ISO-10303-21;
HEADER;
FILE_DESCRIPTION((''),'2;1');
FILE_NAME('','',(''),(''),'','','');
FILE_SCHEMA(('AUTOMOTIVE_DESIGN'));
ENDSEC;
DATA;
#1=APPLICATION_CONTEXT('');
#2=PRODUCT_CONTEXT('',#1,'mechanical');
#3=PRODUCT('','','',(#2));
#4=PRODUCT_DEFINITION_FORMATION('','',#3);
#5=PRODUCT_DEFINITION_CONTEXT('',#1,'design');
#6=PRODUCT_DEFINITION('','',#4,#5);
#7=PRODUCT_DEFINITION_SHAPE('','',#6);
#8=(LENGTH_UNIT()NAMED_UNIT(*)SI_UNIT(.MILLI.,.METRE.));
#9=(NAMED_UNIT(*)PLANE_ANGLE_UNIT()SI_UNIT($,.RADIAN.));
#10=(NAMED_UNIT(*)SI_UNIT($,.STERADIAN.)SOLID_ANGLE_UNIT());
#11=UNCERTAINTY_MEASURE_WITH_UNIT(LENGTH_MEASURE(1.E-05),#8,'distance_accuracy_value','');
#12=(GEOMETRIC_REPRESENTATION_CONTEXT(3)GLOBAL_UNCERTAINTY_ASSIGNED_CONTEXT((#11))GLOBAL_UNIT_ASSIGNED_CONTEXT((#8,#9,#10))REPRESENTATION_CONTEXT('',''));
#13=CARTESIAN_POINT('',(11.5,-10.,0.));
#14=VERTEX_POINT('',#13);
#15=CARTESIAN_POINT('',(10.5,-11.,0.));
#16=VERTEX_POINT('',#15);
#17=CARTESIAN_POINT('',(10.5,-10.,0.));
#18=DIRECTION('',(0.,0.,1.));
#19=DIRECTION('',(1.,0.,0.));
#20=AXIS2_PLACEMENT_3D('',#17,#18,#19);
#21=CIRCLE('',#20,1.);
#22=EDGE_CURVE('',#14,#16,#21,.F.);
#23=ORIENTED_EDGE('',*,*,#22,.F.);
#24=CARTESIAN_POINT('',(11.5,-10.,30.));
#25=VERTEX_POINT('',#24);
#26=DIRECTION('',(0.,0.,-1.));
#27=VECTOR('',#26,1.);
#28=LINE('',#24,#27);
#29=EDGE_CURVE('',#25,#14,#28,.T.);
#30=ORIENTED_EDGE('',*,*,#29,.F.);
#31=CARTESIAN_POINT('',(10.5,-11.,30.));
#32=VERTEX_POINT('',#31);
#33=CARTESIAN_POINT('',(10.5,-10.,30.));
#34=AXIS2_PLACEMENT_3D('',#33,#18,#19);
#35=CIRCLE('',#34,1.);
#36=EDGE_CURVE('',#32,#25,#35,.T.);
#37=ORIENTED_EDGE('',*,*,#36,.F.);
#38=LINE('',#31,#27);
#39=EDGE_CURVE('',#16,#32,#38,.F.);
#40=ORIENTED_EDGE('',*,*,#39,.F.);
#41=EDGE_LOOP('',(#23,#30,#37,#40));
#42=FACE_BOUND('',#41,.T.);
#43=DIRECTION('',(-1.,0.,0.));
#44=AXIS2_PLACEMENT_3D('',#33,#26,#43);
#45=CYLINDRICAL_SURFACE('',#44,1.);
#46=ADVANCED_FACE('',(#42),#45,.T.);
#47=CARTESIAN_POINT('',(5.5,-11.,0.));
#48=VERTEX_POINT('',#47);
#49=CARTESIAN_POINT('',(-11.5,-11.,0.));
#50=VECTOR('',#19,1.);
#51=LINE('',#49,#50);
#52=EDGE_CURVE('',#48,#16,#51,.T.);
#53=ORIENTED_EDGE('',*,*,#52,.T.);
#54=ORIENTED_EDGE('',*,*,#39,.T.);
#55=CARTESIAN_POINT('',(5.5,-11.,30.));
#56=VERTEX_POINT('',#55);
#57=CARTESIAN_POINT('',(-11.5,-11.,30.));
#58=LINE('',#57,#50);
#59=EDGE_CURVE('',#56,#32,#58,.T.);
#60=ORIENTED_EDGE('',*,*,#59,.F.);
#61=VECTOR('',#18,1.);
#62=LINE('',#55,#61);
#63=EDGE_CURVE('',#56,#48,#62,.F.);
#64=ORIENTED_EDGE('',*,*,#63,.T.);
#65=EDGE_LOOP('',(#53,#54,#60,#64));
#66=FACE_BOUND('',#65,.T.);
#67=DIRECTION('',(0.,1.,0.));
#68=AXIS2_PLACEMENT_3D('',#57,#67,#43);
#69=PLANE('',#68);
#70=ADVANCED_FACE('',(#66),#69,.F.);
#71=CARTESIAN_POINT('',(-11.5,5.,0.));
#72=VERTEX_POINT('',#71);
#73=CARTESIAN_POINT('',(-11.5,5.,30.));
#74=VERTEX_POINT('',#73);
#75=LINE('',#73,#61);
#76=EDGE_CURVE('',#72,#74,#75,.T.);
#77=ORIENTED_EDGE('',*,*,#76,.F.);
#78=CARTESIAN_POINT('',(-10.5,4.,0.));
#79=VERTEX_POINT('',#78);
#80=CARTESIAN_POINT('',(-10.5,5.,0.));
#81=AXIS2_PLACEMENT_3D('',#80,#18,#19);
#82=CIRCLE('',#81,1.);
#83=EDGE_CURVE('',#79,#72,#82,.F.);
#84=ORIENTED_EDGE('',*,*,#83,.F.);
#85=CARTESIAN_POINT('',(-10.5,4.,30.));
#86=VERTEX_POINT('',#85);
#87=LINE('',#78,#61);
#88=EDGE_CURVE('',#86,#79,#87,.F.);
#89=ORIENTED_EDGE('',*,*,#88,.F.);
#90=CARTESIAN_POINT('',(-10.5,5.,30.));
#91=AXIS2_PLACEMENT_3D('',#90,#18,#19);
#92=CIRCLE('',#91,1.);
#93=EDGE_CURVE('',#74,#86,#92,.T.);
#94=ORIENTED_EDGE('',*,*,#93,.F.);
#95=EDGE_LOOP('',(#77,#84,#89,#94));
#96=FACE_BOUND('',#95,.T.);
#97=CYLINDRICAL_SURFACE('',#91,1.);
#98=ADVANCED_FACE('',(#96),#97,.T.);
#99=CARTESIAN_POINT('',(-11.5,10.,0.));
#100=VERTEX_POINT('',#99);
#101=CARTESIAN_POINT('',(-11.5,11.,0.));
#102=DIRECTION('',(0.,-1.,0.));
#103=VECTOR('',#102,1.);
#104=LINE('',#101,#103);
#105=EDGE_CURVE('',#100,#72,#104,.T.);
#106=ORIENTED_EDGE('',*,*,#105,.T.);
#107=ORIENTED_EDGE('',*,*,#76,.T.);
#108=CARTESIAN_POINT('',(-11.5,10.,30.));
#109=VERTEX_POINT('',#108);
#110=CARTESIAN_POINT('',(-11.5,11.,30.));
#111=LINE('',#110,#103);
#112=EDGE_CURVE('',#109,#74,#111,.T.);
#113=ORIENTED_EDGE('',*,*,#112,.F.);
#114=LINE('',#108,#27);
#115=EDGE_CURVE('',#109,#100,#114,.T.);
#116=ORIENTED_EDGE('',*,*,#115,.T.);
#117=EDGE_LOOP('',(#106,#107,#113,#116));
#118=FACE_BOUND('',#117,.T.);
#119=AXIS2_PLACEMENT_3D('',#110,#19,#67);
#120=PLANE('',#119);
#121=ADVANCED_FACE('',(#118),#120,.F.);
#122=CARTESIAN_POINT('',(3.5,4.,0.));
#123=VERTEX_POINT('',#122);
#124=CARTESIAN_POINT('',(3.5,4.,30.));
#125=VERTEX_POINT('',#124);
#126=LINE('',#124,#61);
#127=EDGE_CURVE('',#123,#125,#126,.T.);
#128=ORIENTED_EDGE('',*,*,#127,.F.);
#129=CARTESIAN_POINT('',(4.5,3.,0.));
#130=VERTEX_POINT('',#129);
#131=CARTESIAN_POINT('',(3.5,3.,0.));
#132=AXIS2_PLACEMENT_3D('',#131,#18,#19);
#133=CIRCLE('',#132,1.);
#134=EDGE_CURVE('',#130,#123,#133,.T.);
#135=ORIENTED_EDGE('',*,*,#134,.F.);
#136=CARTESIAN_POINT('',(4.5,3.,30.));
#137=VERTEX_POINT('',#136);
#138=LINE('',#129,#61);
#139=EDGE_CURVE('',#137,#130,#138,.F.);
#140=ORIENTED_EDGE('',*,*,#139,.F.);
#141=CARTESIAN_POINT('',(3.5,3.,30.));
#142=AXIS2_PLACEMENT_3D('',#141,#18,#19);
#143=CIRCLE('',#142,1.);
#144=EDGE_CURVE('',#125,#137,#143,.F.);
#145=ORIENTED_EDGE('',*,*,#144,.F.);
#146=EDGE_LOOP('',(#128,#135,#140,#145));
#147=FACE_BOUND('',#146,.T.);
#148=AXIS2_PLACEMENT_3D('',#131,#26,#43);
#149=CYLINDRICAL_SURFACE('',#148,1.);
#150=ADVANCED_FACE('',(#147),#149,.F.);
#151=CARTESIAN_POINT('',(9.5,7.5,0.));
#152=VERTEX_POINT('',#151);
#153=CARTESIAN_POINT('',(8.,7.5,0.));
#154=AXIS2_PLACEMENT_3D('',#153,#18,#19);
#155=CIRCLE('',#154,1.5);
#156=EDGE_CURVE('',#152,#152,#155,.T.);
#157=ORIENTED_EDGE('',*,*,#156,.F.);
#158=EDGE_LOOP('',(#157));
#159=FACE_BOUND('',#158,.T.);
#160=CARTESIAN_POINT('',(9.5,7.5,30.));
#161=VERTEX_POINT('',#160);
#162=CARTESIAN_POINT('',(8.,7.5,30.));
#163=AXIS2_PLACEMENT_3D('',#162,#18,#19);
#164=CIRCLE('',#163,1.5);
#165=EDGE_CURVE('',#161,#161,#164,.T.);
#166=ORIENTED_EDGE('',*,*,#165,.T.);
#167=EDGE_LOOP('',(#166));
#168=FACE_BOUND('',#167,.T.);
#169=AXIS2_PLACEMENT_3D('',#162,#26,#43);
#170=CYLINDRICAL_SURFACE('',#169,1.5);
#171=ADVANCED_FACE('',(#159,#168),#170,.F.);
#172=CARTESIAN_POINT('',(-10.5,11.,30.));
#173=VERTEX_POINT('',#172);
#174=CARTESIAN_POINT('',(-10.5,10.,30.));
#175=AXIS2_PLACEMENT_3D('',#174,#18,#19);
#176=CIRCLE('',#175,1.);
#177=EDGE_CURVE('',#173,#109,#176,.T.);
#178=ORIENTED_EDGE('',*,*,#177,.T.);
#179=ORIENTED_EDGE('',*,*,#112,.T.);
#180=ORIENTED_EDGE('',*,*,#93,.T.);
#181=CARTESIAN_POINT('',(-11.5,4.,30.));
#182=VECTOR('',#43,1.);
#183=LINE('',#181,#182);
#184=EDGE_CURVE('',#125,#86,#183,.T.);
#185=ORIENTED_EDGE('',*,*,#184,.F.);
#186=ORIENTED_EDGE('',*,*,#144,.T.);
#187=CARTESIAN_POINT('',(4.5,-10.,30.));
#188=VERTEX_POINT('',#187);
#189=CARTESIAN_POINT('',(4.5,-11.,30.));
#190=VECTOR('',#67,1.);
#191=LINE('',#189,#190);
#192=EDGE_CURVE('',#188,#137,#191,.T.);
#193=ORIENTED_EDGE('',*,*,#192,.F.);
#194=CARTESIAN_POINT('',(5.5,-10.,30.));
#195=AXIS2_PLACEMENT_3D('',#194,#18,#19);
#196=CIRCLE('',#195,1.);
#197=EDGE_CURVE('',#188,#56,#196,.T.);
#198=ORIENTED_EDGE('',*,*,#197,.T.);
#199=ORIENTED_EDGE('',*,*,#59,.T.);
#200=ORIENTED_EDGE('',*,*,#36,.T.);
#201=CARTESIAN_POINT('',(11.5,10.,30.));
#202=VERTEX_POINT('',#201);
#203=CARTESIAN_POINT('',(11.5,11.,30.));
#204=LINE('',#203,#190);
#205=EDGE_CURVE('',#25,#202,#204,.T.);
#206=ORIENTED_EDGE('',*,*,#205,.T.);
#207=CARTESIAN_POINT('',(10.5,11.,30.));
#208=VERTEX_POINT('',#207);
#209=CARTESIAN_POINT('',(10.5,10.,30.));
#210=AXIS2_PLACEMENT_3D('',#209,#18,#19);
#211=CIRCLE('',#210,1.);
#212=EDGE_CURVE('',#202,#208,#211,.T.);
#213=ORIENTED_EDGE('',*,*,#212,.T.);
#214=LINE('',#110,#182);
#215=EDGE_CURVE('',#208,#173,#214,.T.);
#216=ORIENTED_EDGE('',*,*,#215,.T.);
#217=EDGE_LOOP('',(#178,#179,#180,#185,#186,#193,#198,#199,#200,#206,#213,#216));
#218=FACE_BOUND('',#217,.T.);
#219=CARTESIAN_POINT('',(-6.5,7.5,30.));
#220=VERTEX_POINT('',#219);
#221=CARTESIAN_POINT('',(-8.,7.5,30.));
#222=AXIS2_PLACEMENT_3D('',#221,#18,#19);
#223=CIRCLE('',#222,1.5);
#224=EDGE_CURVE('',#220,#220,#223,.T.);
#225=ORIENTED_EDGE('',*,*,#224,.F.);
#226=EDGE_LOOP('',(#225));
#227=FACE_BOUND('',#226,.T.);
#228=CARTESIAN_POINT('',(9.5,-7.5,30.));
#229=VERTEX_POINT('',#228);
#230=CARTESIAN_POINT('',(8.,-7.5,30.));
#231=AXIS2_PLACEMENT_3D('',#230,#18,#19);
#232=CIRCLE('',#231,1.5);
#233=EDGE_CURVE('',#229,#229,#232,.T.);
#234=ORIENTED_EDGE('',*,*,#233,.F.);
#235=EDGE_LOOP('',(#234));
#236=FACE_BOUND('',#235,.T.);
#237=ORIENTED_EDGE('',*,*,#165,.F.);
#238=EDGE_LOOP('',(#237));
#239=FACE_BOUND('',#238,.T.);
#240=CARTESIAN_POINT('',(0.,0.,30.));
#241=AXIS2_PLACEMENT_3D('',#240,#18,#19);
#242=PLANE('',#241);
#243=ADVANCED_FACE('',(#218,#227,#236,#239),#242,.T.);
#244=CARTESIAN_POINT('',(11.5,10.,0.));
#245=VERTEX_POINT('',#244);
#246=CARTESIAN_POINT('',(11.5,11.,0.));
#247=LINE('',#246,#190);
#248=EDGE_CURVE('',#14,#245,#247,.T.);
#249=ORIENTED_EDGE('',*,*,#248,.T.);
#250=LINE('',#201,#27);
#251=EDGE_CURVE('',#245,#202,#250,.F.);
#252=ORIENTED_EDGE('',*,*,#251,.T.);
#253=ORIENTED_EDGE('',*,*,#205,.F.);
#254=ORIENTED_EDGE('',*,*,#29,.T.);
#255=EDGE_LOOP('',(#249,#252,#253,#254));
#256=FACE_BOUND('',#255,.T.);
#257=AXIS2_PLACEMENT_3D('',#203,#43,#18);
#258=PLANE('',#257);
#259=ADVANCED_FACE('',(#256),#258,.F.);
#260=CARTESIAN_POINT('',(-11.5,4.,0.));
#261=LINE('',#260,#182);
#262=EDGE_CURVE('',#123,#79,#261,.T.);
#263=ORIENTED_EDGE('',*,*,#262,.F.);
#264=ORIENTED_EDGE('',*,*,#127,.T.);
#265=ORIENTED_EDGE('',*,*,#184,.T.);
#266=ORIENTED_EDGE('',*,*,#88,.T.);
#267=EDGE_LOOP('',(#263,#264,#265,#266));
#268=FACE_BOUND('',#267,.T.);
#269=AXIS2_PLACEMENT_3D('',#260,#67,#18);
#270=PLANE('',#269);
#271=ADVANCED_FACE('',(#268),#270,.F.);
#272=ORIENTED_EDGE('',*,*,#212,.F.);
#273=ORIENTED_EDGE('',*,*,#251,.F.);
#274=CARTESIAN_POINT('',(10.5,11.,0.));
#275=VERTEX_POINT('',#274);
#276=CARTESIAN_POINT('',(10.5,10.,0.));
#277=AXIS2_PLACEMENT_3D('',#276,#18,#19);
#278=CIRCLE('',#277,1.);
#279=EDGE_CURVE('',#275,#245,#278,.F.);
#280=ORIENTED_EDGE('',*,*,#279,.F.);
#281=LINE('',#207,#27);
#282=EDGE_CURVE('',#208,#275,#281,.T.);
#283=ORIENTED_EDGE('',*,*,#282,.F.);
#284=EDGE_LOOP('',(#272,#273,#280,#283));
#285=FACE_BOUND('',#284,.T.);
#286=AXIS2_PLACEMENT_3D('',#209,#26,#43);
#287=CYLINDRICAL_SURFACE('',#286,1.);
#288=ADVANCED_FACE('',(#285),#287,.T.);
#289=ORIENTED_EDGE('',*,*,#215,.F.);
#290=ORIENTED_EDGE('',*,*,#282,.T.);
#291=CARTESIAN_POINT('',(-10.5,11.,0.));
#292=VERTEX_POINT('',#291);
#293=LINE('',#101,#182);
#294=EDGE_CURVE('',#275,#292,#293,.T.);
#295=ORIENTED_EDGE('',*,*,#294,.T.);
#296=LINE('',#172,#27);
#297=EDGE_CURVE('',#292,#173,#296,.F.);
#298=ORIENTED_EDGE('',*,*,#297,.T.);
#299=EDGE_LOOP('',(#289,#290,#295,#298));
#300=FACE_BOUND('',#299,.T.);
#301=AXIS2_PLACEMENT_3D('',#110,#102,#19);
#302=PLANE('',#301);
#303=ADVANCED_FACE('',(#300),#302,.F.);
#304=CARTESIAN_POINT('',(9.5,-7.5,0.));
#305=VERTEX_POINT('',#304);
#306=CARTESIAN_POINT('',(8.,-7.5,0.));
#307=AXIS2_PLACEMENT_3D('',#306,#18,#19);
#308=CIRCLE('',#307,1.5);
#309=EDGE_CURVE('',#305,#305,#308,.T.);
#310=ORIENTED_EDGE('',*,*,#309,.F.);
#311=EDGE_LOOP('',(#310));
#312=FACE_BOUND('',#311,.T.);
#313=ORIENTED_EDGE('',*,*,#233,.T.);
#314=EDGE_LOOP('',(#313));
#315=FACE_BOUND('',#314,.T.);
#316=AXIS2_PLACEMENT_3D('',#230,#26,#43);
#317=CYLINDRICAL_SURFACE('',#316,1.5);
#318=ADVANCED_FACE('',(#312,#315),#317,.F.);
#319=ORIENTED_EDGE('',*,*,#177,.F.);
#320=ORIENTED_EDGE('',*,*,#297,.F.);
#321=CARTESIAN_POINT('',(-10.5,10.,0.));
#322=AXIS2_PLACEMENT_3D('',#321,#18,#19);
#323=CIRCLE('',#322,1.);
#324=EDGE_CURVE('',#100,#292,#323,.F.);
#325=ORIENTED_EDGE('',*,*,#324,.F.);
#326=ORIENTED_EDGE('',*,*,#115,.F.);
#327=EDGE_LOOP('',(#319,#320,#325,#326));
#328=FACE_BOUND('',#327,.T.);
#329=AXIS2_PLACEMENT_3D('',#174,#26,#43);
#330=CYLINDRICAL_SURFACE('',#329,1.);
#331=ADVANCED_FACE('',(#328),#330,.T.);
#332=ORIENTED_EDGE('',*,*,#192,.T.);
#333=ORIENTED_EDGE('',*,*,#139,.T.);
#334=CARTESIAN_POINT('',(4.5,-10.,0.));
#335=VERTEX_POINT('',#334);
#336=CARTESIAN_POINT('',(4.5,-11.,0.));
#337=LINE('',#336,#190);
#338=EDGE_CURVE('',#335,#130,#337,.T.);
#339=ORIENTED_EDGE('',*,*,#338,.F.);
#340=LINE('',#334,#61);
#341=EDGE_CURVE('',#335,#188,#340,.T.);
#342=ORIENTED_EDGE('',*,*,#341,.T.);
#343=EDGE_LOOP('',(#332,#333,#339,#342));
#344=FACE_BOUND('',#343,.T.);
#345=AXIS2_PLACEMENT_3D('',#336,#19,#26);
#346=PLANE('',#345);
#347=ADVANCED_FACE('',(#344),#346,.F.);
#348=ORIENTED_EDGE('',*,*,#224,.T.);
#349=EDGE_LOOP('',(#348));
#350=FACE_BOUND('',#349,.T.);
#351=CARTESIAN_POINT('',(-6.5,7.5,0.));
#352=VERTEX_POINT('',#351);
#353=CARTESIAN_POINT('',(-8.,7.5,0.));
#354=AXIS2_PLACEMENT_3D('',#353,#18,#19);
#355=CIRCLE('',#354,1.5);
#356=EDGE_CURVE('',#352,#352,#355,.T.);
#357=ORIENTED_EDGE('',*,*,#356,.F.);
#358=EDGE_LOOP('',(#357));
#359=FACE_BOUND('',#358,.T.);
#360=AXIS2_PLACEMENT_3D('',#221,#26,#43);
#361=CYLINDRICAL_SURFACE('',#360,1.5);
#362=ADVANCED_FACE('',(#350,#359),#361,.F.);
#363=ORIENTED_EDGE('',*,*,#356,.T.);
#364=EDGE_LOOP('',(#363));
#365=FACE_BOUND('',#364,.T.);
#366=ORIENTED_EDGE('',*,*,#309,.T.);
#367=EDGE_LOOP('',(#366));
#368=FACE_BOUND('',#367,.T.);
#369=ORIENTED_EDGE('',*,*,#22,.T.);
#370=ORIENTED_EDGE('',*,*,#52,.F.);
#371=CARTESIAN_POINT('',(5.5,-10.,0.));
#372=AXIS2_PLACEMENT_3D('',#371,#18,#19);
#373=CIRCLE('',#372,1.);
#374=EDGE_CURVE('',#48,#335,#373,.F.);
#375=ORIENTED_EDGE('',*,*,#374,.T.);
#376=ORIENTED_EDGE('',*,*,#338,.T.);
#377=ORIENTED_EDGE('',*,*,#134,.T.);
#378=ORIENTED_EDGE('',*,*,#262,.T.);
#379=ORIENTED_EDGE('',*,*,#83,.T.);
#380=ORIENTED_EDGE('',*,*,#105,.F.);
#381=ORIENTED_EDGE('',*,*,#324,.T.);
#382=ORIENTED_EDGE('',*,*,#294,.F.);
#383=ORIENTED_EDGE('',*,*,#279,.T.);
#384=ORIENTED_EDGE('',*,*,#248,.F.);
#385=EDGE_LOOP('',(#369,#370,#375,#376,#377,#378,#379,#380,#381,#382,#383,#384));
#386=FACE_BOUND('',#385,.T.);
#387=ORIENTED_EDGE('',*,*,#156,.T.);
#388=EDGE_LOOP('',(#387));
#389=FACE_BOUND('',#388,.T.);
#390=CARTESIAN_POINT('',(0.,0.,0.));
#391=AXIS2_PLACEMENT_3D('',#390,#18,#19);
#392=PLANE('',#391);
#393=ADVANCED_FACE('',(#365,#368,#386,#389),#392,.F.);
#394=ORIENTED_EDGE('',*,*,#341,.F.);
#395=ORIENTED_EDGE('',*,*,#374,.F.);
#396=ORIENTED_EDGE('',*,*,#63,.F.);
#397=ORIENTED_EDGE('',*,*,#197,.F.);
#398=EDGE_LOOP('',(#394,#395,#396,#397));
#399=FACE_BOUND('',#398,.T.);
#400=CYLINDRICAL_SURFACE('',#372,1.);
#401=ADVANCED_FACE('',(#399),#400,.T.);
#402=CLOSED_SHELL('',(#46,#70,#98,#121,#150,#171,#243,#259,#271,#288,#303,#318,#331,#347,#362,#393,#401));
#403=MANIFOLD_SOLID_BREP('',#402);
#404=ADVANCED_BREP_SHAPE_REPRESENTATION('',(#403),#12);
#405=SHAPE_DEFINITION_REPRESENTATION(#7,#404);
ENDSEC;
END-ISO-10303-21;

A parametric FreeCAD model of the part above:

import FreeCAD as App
import Part
import Sketcher
from FreeCAD import Vector
Q = App.Units.Quantity


def edges_at(feature, points):
    """Names of the edges that pass closest to the given points."""
    edges = feature.Shape.Edges
    near = lambda p: min(range(len(edges)), key=lambda i: edges[i].distToShape(Part.Vertex(*p))[0])
    return sorted({f"Edge{near(p) + 1}" for p in points})

doc = App.newDocument("Part")
body = doc.addObject("PartDesign::Body", "Body")

sketch1 = body.newObject("Sketcher::SketchObject", "Sketch")
sketch1.AttachmentSupport = (doc.getObject("XY_Plane"), [""])
sketch1.MapMode = "FlatFace"
sketch1.addGeometry([
    Part.LineSegment(Vector(-11.5, 11, 0), Vector(-11.5, -11, 0)),
    Part.LineSegment(Vector(-11.5, -11, 0), Vector(11.5, -11, 0)),
    Part.LineSegment(Vector(11.5, -11, 0), Vector(11.5, 11, 0)),
    Part.LineSegment(Vector(11.5, 11, 0), Vector(-11.5, 11, 0)),
    Part.Circle(Vector(-8, -7.5, 0), Vector(0, 0, 1), 1.5),
    Part.Circle(Vector(8, -7.5, 0), Vector(0, 0, 1), 1.5),
    Part.Circle(Vector(-8, 7.5, 0), Vector(0, 0, 1), 1.5),
    Part.Circle(Vector(8, 7.5, 0), Vector(0, 0, 1), 1.5),
], False)
sketch1.addConstraint([
    Sketcher.Constraint("Coincident", 0, 2, 1, 1),
    Sketcher.Constraint("Coincident", 1, 2, 2, 1),
    Sketcher.Constraint("Coincident", 2, 2, 3, 1),
    Sketcher.Constraint("Coincident", 3, 2, 0, 1),
    Sketcher.Constraint("Vertical", 0),
    Sketcher.Constraint("Horizontal", 1),
    Sketcher.Constraint("Vertical", 2),
    Sketcher.Constraint("Horizontal", 3),
    Sketcher.Constraint("Equal", 4, 5),
    Sketcher.Constraint("Equal", 5, 6),
    Sketcher.Constraint("Equal", 6, 7),
    Sketcher.Constraint("Symmetric", 5, 3, 6, 3, -1, 1),
    Sketcher.Constraint("Symmetric", 4, 3, 7, 3, -1, 1),
    Sketcher.Constraint("Symmetric", 0, 2, 2, 2, -1, 1),
    Sketcher.Constraint("Symmetric", 4, 3, 5, 3, -2),
    Sketcher.Constraint("Diameter", 4, Q("3 mm")),
    Sketcher.Constraint("DistanceX", 1, 1, 1, 2, Q("23 mm")),
    Sketcher.Constraint("DistanceY", 0, 2, 0, 1, Q("22 mm")),
    Sketcher.Constraint("DistanceX", 4, 3, -1, 1, Q("8 mm")),
    Sketcher.Constraint("DistanceY", 4, 3, 6, 3, Q("15 mm")),
])
pad1 = body.newObject("PartDesign::Pad", "Pad")
pad1.Profile = sketch1
pad1.Length = 30

sketch2 = body.newObject("Sketcher::SketchObject", "Sketch001")
sketch2.AttachmentSupport = (doc.getObject("XY_Plane"), [""])
sketch2.MapMode = "FlatFace"
sketch2.AttachmentOffset = App.Placement(Vector(0, 0, 30), App.Rotation())
sketch2.addGeometry([
    Part.LineSegment(Vector(-11.5, 4, 0), Vector(-11.5, -11, 0)),
    Part.LineSegment(Vector(-11.5, -11, 0), Vector(4.5, -11, 0)),
    Part.LineSegment(Vector(4.5, -11, 0), Vector(4.5, 4, 0)),
    Part.LineSegment(Vector(4.5, 4, 0), Vector(-11.5, 4, 0)),
], False)
sketch2.addConstraint([
    Sketcher.Constraint("Coincident", 0, 2, 1, 1),
    Sketcher.Constraint("Coincident", 1, 2, 2, 1),
    Sketcher.Constraint("Coincident", 2, 2, 3, 1),
    Sketcher.Constraint("Coincident", 3, 2, 0, 1),
    Sketcher.Constraint("Vertical", 0),
    Sketcher.Constraint("Horizontal", 1),
    Sketcher.Constraint("Vertical", 2),
    Sketcher.Constraint("Horizontal", 3),
    Sketcher.Constraint("DistanceX", 1, 1, 1, 2, Q("16 mm")),
    Sketcher.Constraint("DistanceY", 0, 2, 0, 1, Q("15 mm")),
    Sketcher.Constraint("DistanceY", 0, 2, -1, 1, Q("11 mm")),
    Sketcher.Constraint("DistanceX", 0, 2, -1, 1, Q("11.5 mm")),
])
pocket1 = body.newObject("PartDesign::Pocket", "Pocket")
pocket1.Profile = sketch2
pocket1.Type = "ThroughAll"
doc.recompute()

fillet = body.newObject("PartDesign::Fillet", "Fillet")
fillet.Base = (pocket1, edges_at(pocket1, [
    (-11.5, 4, 15),
    (4.5, 4, 15),
    (4.5, -11, 15),
    (11.5, -11, 15),
    (-11.5, 11, 15),
    (11.5, 11, 15),
]))
fillet.Radius = 1

doc.recompute()
